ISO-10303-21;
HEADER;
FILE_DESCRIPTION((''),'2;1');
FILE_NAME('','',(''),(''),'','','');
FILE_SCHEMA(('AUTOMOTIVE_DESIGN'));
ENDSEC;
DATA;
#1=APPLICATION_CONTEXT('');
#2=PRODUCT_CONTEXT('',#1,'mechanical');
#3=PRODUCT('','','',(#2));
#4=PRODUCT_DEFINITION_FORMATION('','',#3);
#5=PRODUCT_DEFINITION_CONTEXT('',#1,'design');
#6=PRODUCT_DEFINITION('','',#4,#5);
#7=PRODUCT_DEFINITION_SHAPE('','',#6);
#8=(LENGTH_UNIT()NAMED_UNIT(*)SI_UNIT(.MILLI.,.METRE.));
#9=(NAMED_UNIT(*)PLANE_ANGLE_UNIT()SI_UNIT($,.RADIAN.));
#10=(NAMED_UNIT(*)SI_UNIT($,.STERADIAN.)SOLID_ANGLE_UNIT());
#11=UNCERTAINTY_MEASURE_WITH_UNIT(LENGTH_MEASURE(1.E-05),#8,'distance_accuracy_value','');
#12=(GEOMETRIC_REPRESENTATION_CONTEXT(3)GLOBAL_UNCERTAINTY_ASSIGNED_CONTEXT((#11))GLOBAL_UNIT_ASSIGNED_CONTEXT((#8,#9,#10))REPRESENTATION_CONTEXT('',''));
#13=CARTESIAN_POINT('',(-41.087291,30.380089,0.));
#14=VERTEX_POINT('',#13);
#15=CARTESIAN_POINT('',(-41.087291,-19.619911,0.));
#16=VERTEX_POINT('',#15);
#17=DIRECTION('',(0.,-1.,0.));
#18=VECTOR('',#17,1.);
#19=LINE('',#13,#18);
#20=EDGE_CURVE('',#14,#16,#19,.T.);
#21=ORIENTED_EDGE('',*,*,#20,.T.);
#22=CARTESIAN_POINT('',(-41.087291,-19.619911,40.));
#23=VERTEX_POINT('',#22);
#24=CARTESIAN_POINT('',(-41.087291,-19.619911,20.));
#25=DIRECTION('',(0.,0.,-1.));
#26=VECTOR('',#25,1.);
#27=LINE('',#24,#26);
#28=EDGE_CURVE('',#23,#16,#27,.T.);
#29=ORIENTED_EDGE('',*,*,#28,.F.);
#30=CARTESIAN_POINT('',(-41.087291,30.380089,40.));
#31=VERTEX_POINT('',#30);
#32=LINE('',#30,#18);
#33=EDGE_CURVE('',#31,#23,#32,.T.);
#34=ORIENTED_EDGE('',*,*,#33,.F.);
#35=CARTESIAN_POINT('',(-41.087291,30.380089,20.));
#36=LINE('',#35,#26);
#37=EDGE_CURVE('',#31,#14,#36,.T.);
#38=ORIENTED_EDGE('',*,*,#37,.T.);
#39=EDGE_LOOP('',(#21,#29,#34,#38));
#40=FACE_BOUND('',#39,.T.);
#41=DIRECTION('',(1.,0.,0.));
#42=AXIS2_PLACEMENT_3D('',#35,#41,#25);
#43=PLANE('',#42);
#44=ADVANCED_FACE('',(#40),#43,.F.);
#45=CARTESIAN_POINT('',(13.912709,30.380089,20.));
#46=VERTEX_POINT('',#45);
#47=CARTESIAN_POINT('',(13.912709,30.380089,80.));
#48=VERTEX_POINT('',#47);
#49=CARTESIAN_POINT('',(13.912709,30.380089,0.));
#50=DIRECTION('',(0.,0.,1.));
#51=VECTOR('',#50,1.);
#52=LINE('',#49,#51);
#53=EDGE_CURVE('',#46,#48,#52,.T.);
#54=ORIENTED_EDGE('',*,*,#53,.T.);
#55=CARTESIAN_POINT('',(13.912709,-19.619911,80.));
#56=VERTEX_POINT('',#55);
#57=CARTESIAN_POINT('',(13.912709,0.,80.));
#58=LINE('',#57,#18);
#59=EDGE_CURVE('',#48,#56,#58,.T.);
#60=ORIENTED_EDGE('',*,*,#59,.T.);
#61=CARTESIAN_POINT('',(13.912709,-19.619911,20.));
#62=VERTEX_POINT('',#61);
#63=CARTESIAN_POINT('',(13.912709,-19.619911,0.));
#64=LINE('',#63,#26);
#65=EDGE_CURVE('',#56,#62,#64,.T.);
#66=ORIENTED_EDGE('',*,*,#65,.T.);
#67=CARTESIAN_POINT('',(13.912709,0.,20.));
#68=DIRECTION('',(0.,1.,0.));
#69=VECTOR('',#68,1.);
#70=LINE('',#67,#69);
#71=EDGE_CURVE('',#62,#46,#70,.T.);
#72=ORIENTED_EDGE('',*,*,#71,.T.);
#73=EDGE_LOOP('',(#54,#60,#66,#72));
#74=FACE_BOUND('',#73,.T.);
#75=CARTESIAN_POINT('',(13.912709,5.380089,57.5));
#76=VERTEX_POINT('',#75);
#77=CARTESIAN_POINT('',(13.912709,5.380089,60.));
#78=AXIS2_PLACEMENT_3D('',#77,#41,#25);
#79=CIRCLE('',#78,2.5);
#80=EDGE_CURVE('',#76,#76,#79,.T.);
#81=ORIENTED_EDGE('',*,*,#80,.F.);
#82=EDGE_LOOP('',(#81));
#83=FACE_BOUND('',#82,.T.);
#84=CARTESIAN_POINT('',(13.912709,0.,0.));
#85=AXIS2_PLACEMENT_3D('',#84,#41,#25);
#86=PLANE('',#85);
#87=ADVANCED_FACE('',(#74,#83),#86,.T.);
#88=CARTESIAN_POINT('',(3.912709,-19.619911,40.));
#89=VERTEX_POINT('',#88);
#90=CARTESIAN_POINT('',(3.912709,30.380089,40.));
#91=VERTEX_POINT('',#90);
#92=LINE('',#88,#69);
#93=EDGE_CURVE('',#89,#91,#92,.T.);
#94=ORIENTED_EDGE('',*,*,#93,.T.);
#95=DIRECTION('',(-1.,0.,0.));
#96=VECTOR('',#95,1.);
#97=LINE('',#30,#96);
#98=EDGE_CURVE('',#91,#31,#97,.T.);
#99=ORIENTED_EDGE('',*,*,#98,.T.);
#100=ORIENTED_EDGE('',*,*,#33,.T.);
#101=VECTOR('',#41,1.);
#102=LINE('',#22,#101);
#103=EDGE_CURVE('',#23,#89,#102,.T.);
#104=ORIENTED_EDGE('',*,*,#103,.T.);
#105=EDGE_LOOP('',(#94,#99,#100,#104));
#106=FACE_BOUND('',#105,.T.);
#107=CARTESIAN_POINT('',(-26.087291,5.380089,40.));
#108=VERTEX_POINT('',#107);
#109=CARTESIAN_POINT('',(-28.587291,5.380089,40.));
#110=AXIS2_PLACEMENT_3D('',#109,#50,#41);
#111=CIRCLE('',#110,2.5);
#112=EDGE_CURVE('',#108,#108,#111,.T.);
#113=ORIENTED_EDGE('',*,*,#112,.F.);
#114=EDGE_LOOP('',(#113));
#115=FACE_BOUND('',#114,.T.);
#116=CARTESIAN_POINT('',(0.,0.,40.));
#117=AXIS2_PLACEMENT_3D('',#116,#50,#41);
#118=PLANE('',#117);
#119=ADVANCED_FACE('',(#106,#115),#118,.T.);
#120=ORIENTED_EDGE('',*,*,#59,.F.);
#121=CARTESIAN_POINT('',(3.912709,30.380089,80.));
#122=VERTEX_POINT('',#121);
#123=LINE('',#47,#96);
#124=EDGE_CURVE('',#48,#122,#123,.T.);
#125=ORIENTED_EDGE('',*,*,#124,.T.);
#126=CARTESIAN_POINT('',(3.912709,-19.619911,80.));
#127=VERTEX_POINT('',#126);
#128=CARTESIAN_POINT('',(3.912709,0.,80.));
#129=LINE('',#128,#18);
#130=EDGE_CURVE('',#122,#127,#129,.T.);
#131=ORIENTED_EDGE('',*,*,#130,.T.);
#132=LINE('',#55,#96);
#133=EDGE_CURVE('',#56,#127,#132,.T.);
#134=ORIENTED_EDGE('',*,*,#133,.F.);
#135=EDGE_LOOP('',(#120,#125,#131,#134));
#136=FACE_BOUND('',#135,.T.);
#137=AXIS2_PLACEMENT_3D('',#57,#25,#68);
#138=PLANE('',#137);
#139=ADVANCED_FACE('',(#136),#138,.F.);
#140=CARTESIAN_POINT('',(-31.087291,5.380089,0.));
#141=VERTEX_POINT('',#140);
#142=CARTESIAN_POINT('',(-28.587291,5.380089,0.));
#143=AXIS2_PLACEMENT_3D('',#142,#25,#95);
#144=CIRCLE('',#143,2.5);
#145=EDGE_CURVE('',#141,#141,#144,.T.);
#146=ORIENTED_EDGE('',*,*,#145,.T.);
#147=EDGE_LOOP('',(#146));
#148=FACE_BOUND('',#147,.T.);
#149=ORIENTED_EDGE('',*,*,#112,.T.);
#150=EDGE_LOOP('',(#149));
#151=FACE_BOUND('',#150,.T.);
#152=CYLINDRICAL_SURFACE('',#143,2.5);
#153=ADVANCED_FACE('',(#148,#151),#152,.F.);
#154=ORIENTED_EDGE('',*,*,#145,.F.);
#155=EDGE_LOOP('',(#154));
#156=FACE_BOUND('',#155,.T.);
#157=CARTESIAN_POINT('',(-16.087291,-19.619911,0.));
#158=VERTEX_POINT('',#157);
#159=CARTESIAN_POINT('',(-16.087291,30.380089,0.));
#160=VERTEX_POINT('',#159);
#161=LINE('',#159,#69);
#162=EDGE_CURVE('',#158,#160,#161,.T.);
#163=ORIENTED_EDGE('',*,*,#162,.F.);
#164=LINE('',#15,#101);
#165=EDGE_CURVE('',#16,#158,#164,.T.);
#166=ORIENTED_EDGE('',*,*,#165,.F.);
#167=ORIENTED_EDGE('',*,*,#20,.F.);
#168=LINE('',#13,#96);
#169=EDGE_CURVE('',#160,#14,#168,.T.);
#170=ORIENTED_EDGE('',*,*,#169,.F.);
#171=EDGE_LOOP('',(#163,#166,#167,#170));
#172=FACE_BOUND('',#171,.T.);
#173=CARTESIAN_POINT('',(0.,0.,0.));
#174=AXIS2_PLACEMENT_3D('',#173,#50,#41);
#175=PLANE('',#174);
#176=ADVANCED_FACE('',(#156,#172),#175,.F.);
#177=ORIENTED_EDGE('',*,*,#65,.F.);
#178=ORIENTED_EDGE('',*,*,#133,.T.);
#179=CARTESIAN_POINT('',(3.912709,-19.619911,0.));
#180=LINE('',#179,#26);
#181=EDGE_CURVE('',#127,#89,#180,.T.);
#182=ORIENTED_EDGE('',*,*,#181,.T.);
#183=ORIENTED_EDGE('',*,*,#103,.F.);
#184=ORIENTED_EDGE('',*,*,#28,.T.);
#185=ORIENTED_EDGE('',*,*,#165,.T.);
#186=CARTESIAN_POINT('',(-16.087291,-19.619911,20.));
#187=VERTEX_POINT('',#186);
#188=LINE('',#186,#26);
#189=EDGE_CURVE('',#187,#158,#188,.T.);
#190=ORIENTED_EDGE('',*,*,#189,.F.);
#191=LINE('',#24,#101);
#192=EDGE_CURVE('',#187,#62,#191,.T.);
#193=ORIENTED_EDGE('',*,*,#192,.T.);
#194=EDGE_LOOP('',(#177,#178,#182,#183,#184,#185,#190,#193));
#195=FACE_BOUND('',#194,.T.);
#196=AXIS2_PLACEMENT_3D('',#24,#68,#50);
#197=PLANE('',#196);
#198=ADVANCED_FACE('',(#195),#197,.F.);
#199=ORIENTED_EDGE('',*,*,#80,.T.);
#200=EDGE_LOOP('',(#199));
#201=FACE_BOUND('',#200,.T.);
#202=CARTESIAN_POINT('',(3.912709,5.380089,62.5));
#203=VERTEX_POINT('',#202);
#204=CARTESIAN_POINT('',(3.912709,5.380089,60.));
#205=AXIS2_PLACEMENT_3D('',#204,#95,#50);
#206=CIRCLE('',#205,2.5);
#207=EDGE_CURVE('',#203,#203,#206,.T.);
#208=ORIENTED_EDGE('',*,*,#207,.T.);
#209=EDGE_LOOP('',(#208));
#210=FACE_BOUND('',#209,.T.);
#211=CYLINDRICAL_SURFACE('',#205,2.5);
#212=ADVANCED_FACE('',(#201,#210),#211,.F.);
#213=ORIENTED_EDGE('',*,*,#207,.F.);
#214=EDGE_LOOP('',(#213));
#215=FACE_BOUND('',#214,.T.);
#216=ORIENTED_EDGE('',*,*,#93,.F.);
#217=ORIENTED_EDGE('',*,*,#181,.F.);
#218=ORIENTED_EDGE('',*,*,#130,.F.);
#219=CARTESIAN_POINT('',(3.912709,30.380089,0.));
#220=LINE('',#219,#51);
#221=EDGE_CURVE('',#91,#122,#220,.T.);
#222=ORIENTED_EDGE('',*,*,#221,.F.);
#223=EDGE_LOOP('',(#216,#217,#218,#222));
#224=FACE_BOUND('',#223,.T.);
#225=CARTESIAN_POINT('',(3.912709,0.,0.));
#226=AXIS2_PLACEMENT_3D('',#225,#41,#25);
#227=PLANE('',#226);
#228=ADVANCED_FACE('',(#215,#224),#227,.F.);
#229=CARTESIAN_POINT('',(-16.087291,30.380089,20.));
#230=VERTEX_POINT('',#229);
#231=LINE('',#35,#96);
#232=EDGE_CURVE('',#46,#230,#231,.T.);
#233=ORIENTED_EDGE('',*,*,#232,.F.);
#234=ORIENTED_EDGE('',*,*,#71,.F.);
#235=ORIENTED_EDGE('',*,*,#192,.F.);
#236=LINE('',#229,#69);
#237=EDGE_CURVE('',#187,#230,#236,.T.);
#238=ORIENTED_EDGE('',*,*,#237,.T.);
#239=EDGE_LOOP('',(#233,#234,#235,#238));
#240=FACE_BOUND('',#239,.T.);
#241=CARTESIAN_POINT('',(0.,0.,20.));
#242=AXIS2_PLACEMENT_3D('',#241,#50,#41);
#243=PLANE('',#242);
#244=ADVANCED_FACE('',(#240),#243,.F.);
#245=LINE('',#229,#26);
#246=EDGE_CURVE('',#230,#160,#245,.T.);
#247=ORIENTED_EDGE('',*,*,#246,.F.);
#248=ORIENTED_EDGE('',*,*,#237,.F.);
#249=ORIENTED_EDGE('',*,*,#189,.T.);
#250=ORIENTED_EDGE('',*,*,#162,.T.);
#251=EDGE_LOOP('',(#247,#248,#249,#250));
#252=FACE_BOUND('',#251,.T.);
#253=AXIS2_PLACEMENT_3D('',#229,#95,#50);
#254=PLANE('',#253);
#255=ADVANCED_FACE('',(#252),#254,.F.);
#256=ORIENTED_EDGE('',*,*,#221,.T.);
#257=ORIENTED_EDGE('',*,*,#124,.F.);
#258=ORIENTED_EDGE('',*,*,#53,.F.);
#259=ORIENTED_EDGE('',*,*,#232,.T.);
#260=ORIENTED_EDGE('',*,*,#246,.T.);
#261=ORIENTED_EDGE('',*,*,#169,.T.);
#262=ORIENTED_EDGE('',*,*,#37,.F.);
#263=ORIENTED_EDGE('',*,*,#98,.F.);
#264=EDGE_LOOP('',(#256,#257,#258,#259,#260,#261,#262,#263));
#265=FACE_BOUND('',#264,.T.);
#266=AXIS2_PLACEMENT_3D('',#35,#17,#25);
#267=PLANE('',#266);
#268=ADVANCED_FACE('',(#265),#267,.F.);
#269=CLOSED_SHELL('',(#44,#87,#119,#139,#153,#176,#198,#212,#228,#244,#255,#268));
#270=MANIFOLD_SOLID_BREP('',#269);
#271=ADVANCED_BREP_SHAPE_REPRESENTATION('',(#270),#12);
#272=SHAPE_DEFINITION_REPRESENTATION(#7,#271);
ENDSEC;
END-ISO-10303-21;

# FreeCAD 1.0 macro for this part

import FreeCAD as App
import Part
import Sketcher

V = App.Vector
Q = App.Units.Quantity


def add_polygon(sketch, points):
    """Adds a closed chain of lines whose ends are joined by coincident constraints."""
    first, n = sketch.GeometryCount, len(points)
    for a, b in zip(points, points[1:] + points[:1]):
        sketch.addGeometry(Part.LineSegment(App.Vector(*a, 0), App.Vector(*b, 0)), False)
    for i in range(n):
        sketch.addConstraint(Sketcher.Constraint("Coincident", first + i, 2, first + (i + 1) % n, 1))

doc = App.newDocument("Part")
params = doc.addObject("Spreadsheet::Sheet", "Params")
for row, (alias, value) in enumerate([
    ("sketch1_width", "25 mm"),
    ("sketch1_height", "50 mm"),
    ("pad1_length", "20 mm"),
    ("sketch2_width", "45 mm"),
    ("sketch2_height", "50 mm"),
    ("pad2_length", "20 mm"),
    ("sketch3_width", "50 mm"),
    ("sketch3_height", "60 mm"),
    ("pad3_length", "10 mm"),
    ("sketch4_diameter", "5 mm"),
    ("hole_diameter", "5 mm"),
    ("hole_depth", "11 mm"),
    ("sketch5_diameter", "5 mm"),
    ("hole2_diameter", "5 mm"),
], start=1):
    params.set(f"A{row}", alias)
    params.set(f"B{row}", "=" + value)
    params.setAlias(f"B{row}", alias)

body = doc.addObject("PartDesign::Body", "Body")

sketch1 = body.newObject("Sketcher::SketchObject", "Sketch")
sketch1.AttachmentSupport = (doc.getObject("XY_Plane"), [""])
sketch1.MapMode = "FlatFace"
add_polygon(sketch1, [(-41.087291, 30.380089), (-41.087291, -19.619911), (-16.087291, -19.619911), (-16.087291, 30.380089)])
sketch1.addConstraint(Sketcher.Constraint("Vertical", 0))
sketch1.addConstraint(Sketcher.Constraint("Horizontal", 1))
sketch1.addConstraint(Sketcher.Constraint("Vertical", 2))
sketch1.addConstraint(Sketcher.Constraint("Horizontal", 3))
sketch1.addConstraint(Sketcher.Constraint("DistanceX", 1, 1, 1, 2, Q("25 mm")))
sketch1.addConstraint(Sketcher.Constraint("DistanceY", 0, 2, 0, 1, Q("50 mm")))
sketch1.addConstraint(Sketcher.Constraint("DistanceX", 0, 2, -1, 1, Q("41.087291 mm")))
sketch1.addConstraint(Sketcher.Constraint("DistanceY", 0, 2, -1, 1, Q("19.619911 mm")))
sketch1.setExpression("Constraints[8]", "Params.sketch1_width")
sketch1.setExpression("Constraints[9]", "Params.sketch1_height")
pad1 = body.newObject("PartDesign::Pad", "Pad")
pad1.Profile = sketch1
pad1.setExpression("Length", "Params.pad1_length")

sketch2 = body.newObject("Sketcher::SketchObject", "Sketch001")
sketch2.AttachmentSupport = (doc.getObject("XY_Plane"), [""])
sketch2.MapMode = "FlatFace"
sketch2.AttachmentOffset = App.Placement(V(0, 0, 20), App.Rotation())
add_polygon(sketch2, [(-41.087291, 30.380089), (-41.087291, -19.619911), (3.912709, -19.619911), (3.912709, 30.380089)])
sketch2.addConstraint(Sketcher.Constraint("Vertical", 0))
sketch2.addConstraint(Sketcher.Constraint("Horizontal", 1))
sketch2.addConstraint(Sketcher.Constraint("Vertical", 2))
sketch2.addConstraint(Sketcher.Constraint("Horizontal", 3))
sketch2.addConstraint(Sketcher.Constraint("DistanceX", 1, 1, 1, 2, Q("45 mm")))
sketch2.addConstraint(Sketcher.Constraint("DistanceY", 0, 2, 0, 1, Q("50 mm")))
sketch2.addConstraint(Sketcher.Constraint("DistanceX", 0, 2, -1, 1, Q("41.087291 mm")))
sketch2.addConstraint(Sketcher.Constraint("DistanceY", 0, 2, -1, 1, Q("19.619911 mm")))
sketch2.setExpression("Constraints[8]", "Params.sketch2_width")
sketch2.setExpression("Constraints[9]", "Params.sketch2_height")
pad2 = body.newObject("PartDesign::Pad", "Pad001")
pad2.Profile = sketch2
pad2.setExpression("Length", "Params.pad2_length")

sketch3 = body.newObject("Sketcher::SketchObject", "Sketch002")
sketch3.AttachmentSupport = (doc.getObject("YZ_Plane"), [""])
sketch3.MapMode = "FlatFace"
sketch3.AttachmentOffset = App.Placement(V(0, 0, 3.912709), App.Rotation())
add_polygon(sketch3, [(-19.619911, 20), (30.380089, 20), (30.380089, 80), (-19.619911, 80)])
sketch3.addConstraint(Sketcher.Constraint("Horizontal", 0))
sketch3.addConstraint(Sketcher.Constraint("Vertical", 1))
sketch3.addConstraint(Sketcher.Constraint("Horizontal", 2))
sketch3.addConstraint(Sketcher.Constraint("Vertical", 3))
sketch3.addConstraint(Sketcher.Constraint("DistanceX", 0, 1, 0, 2, Q("50 mm")))
sketch3.addConstraint(Sketcher.Constraint("DistanceY", 1, 1, 1, 2, Q("60 mm")))
sketch3.addConstraint(Sketcher.Constraint("DistanceY", -1, 1, 0, 2, Q("20 mm")))
sketch3.addConstraint(Sketcher.Constraint("DistanceX", -1, 1, 0, 2, Q("30.380089 mm")))
sketch3.setExpression("Constraints[8]", "Params.sketch3_width")
sketch3.setExpression("Constraints[9]", "Params.sketch3_height")
pad3 = body.newObject("PartDesign::Pad", "Pad002")
pad3.Profile = sketch3
pad3.setExpression("Length", "Params.pad3_length")

sketch4 = body.newObject("Sketcher::SketchObject", "Sketch003")
sketch4.AttachmentSupport = (doc.getObject("YZ_Plane"), [""])
sketch4.MapMode = "FlatFace"
sketch4.AttachmentOffset = App.Placement(V(0, 0, 3.912709), App.Rotation())
sketch4.addGeometry(Part.Circle(V(5.380089, 60, 0), V(0, 0, 1), 2.5), False)
sketch4.addConstraint(Sketcher.Constraint("Diameter", 0, Q("5 mm")))
sketch4.addConstraint(Sketcher.Constraint("DistanceY", -1, 1, 0, 3, Q("60 mm")))
sketch4.addConstraint(Sketcher.Constraint("DistanceX", -1, 1, 0, 3, Q("5.380089 mm")))
sketch4.setExpression("Constraints[0]", "Params.sketch4_diameter")
doc.recompute()
hole = body.newObject("PartDesign::Hole", "Hole")
hole.Profile = sketch4
hole.ThreadType = "None"
hole.setExpression("Diameter", "Params.hole_diameter")
hole.DepthType = "Dimension"
hole.setExpression("Depth", "Params.hole_depth")
hole.DrillPoint = "Angled"
hole.DrillPointAngle = 118
hole.Reversed = True

sketch5 = body.newObject("Sketcher::SketchObject", "Sketch004")
sketch5.AttachmentSupport = (doc.getObject("XY_Plane"), [""])
sketch5.MapMode = "FlatFace"
sketch5.addGeometry(Part.Circle(V(-28.587291, 5.380089, 0), V(0, 0, 1), 2.5), False)
sketch5.addConstraint(Sketcher.Constraint("Diameter", 0, Q("5 mm")))
sketch5.addConstraint(Sketcher.Constraint("DistanceX", 0, 3, -1, 1, Q("28.587291 mm")))
sketch5.addConstraint(Sketcher.Constraint("DistanceY", -1, 1, 0, 3, Q("5.380089 mm")))
sketch5.setExpression("Constraints[0]", "Params.sketch5_diameter")
doc.recompute()
hole2 = body.newObject("PartDesign::Hole", "Hole001")
hole2.Profile = sketch5
hole2.ThreadType = "None"
hole2.setExpression("Diameter", "Params.hole2_diameter")
hole2.DepthType = "ThroughAll"
hole2.Reversed = True

doc.recompute()
